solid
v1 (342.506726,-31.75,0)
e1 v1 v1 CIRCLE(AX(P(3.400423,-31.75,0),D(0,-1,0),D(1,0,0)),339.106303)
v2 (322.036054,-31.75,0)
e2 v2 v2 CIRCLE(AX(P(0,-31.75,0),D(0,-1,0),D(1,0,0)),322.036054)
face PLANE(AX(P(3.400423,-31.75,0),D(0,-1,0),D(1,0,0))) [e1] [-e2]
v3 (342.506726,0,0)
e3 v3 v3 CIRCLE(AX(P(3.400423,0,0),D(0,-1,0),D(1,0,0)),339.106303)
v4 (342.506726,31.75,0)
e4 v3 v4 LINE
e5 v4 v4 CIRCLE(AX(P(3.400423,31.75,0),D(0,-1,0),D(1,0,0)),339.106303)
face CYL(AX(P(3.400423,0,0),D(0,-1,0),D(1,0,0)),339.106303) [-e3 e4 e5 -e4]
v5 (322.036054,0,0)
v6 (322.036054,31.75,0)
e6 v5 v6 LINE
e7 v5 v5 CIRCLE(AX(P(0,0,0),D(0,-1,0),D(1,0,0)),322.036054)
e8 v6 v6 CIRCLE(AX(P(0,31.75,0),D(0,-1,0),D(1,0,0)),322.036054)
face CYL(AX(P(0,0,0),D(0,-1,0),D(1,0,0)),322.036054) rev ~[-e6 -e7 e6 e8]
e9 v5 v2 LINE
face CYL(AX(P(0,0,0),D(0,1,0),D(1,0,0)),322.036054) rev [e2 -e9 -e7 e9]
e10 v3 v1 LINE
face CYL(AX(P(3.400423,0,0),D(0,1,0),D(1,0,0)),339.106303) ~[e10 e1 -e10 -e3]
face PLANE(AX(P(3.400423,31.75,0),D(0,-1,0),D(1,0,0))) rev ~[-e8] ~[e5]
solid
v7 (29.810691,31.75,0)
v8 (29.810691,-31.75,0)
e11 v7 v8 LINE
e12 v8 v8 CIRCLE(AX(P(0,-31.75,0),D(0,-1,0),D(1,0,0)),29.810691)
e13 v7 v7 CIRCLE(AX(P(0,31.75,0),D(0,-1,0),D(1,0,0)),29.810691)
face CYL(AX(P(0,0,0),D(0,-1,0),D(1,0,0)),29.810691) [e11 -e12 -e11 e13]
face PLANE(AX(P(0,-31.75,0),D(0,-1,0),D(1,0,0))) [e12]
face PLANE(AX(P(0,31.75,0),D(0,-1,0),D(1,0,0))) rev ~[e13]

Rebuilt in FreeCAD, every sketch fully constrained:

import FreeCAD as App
import Part
import Sketcher

V = App.Vector
Q = App.Units.Quantity

doc = App.newDocument("Part")
body = doc.addObject("PartDesign::Body", "Body")
body.AllowCompound = True

# Sketch on XZ plane
sketch1 = doc.addObject("Sketcher::SketchObject", "Sketch")
body.addObject(sketch1)
sketch1.AttachmentSupport = (doc.XZ_Plane, [""])
sketch1.MapMode = "FlatFace"
sketch1.addGeometry(Part.Circle(V(3, 0, 0), V(0, 0, 1), 339), False)
sketch1.addGeometry(Part.Circle(V(0, 0, 0), V(0, 0, 1), 322), False)
sketch1.addGeometry(Part.Circle(V(0, 0, 0), V(0, 0, 1), 30), False)
sketch1.addConstraint(Sketcher.Constraint("Coincident", 1, 3, -1, 1))
sketch1.addConstraint(Sketcher.Constraint("Coincident", 2, 3, -1, 1))
sketch1.addConstraint(Sketcher.Constraint("PointOnObject", 0, 3, -1))
sketch1.addConstraint(Sketcher.Constraint("Diameter", 1, 644.072108))
sketch1.addConstraint(Sketcher.Constraint("Diameter", 2, 59.621382))
sketch1.addConstraint(Sketcher.Constraint("Diameter", 0, 678.212606))
sketch1.addConstraint(Sketcher.Constraint("DistanceX", -1, 1, 0, 3, 3.400423))
pad1 = doc.addObject("PartDesign::Pad", "Pad")
body.addObject(pad1)
pad1.Profile = sketch1
pad1.Length = Q("2.5 in")
pad1.Midplane = True

doc.recompute()
